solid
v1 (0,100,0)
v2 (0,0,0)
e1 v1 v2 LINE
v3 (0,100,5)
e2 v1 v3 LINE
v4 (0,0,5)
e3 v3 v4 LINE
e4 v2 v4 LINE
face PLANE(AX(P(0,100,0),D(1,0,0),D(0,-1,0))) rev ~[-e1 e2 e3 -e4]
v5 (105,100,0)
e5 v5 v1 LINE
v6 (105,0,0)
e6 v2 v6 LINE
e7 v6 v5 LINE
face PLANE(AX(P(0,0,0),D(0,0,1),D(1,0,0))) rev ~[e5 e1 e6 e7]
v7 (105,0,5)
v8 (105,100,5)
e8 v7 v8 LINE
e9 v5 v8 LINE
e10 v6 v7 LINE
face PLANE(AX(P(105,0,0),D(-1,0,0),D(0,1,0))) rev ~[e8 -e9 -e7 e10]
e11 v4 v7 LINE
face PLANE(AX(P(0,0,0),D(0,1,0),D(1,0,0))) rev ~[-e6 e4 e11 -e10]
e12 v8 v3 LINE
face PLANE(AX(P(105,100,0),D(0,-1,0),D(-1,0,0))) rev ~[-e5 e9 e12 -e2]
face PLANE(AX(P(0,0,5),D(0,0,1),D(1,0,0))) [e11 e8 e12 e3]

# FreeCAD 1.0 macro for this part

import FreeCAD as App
import Part
import Sketcher

doc = App.newDocument("Part")
body = doc.addObject("PartDesign::Body", "Body")

# Sketch on XY plane
sketch1 = body.newObject("Sketcher::SketchObject", "Sketch")
sketch1.AttachmentSupport = (doc.getObject("XY_Plane"), [""])
sketch1.MapMode = "FlatFace"
sketch1.addGeometry([
    Part.LineSegment(App.Vector(0, 100, 0), App.Vector(0, 0, 0)),
    Part.LineSegment(App.Vector(0, 0, 0), App.Vector(105, 0, 0)),
    Part.LineSegment(App.Vector(105, 0, 0), App.Vector(105, 100, 0)),
    Part.LineSegment(App.Vector(105, 100, 0), App.Vector(0, 100, 0)),
], False)
sketch1.addConstraint([
    Sketcher.Constraint("Coincident", 0, 2, 1, 1),
    Sketcher.Constraint("Coincident", 1, 2, 2, 1),
    Sketcher.Constraint("Coincident", 2, 2, 3, 1),
    Sketcher.Constraint("Coincident", 3, 2, 0, 1),
    Sketcher.Constraint("Vertical", 0),
    Sketcher.Constraint("Horizontal", 1),
    Sketcher.Constraint("Vertical", 2),
    Sketcher.Constraint("Horizontal", 3),
    Sketcher.Constraint("Coincident", 0, 2, -1, 1),
    Sketcher.Constraint("DistanceX", 1, 1, 1, 2, 105.0),
    Sketcher.Constraint("DistanceY", 0, 2, 0, 1, 100.0),
])
pad1 = body.newObject("PartDesign::Pad", "Pad")
pad1.Profile = sketch1
pad1.Length = 5

doc.recompute()
